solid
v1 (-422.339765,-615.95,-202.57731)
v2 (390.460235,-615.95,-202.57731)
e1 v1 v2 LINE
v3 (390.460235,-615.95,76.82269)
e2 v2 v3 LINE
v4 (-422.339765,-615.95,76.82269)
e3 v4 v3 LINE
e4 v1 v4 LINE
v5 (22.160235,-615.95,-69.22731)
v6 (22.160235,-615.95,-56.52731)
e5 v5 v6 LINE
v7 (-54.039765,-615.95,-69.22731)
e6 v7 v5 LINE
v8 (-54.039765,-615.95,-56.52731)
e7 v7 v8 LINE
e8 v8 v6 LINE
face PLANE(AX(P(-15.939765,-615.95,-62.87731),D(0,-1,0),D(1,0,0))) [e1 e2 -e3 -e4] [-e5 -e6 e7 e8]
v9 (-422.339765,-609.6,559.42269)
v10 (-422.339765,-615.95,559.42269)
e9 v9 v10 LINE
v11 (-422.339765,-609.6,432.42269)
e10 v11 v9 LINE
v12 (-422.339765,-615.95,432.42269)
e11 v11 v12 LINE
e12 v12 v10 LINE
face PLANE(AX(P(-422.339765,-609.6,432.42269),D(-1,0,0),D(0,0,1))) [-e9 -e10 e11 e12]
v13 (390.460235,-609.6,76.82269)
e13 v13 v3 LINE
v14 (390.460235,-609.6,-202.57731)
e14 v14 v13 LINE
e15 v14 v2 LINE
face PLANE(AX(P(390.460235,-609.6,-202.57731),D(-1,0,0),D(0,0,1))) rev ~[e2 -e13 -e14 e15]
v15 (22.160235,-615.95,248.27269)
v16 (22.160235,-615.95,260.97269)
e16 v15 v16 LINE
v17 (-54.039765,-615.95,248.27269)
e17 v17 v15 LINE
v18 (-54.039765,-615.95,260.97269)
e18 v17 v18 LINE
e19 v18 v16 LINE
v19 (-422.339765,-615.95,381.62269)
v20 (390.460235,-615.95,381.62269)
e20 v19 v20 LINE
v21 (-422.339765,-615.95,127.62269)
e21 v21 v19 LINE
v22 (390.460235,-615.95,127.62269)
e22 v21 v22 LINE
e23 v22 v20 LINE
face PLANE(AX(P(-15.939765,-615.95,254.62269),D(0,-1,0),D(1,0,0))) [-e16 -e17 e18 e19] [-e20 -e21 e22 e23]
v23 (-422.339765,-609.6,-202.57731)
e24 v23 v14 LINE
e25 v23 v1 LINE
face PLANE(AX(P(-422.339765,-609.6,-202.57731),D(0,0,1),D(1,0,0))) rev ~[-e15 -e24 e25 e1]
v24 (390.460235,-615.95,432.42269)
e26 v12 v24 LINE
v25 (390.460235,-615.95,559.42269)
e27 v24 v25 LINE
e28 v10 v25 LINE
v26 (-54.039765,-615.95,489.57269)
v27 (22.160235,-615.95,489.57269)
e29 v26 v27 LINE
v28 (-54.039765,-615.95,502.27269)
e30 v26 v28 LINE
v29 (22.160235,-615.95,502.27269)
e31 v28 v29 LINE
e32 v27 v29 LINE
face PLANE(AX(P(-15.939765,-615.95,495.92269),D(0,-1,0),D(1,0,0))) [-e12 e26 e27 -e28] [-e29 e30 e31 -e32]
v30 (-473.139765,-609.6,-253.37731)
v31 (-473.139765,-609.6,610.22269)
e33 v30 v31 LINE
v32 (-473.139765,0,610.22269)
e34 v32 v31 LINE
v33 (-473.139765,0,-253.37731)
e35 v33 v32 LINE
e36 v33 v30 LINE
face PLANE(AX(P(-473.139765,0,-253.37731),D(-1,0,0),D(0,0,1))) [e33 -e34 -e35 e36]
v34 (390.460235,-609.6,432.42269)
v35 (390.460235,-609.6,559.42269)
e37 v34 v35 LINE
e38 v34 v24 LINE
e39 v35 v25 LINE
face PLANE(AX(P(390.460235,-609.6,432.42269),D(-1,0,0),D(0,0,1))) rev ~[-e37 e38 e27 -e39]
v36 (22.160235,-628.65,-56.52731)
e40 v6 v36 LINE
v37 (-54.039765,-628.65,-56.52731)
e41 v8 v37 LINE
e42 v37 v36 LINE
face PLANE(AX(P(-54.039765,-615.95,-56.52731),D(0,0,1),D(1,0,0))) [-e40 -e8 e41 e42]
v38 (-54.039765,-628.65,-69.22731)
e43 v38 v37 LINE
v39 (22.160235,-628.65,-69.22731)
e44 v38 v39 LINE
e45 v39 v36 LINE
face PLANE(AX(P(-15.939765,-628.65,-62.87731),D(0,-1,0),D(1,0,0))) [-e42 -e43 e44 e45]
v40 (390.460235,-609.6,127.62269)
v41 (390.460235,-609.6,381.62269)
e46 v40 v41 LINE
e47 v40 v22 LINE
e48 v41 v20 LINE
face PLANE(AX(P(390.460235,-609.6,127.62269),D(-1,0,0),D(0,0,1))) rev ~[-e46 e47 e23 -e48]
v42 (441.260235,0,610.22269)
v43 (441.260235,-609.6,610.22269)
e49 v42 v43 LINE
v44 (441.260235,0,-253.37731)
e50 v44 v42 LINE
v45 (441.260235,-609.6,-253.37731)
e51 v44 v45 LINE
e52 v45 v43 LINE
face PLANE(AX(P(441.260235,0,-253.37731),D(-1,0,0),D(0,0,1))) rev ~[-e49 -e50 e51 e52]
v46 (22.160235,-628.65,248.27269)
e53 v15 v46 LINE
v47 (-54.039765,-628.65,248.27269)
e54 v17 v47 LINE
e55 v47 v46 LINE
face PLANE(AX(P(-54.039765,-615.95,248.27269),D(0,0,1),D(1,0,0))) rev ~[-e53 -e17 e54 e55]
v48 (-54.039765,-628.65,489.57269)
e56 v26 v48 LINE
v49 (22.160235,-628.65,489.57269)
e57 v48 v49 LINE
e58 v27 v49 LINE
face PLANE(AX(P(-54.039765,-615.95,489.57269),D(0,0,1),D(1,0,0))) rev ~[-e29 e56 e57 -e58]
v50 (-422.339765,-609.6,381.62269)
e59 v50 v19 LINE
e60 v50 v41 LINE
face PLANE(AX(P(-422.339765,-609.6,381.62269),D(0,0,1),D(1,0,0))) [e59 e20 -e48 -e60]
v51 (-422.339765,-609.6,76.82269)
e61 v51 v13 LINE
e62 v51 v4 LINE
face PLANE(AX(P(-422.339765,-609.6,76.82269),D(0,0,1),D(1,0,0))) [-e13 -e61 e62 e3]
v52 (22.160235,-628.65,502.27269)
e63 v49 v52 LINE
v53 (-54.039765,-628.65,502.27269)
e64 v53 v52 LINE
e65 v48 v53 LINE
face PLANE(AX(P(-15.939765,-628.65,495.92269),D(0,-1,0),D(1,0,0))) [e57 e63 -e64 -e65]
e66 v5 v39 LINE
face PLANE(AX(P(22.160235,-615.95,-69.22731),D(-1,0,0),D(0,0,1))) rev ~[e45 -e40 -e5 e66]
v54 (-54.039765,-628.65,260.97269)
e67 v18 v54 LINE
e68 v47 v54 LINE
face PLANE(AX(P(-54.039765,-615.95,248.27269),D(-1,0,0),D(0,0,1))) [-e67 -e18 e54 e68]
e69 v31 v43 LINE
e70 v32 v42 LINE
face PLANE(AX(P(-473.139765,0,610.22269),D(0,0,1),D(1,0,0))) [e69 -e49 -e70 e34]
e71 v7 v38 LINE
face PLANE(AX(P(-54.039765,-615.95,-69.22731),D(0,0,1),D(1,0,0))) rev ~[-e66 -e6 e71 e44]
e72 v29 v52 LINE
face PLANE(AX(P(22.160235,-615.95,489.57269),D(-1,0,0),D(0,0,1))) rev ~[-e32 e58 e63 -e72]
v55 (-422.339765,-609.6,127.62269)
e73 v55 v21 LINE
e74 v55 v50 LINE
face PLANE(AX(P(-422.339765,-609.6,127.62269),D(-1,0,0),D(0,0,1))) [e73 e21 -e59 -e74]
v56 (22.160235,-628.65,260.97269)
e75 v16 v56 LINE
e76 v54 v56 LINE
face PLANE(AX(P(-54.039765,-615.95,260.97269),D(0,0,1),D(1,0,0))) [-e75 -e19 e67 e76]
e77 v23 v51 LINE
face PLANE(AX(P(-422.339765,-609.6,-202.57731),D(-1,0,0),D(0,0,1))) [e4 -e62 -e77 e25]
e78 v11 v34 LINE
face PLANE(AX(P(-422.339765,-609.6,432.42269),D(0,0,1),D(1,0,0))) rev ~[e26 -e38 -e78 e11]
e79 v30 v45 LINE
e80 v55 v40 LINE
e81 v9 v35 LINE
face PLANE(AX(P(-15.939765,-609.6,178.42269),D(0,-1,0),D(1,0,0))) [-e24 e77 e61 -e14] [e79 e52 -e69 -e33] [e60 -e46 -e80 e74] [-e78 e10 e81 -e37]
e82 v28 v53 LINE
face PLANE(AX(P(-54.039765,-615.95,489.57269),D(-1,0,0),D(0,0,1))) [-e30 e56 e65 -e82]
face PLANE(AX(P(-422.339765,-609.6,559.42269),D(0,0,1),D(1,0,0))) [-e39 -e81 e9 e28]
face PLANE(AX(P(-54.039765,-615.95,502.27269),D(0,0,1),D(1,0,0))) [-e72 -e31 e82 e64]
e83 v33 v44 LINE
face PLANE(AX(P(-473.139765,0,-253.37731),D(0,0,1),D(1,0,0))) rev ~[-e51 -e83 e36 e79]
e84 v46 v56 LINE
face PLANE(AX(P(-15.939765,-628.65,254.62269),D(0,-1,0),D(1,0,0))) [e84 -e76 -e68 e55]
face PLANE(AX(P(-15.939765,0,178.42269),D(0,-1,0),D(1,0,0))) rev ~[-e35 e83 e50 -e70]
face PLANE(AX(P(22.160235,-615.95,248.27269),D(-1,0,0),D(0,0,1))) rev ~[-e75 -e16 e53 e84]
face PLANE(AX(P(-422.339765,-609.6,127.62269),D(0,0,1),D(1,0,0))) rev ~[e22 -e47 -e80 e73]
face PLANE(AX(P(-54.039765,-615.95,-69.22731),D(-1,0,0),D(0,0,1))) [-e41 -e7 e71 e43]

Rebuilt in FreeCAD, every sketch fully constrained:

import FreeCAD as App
import Part
import Sketcher
Q = App.Units.Quantity

doc = App.newDocument("Part")
body = doc.addObject("PartDesign::Body", "Body")

# Sketch on XZ plane
sketch1 = doc.addObject("Sketcher::SketchObject", "Sketch")
body.addObject(sketch1)
sketch1.AttachmentSupport = (doc.XZ_Plane, [""])
sketch1.MapMode = "FlatFace"
sketch1.addGeometry(Part.LineSegment(App.Vector(-473, 610, 0), App.Vector(-473, -253, 0)), False)
sketch1.addGeometry(Part.LineSegment(App.Vector(-473, -253, 0), App.Vector(441, -253, 0)), False)
sketch1.addGeometry(Part.LineSegment(App.Vector(441, -253, 0), App.Vector(441, 610, 0)), False)
sketch1.addGeometry(Part.LineSegment(App.Vector(441, 610, 0), App.Vector(-473, 610, 0)), False)
sketch1.addConstraint(Sketcher.Constraint("Coincident", 0, 2, 1, 1))
sketch1.addConstraint(Sketcher.Constraint("Coincident", 1, 2, 2, 1))
sketch1.addConstraint(Sketcher.Constraint("Coincident", 2, 2, 3, 1))
sketch1.addConstraint(Sketcher.Constraint("Coincident", 3, 2, 0, 1))
sketch1.addConstraint(Sketcher.Constraint("Vertical", 0))
sketch1.addConstraint(Sketcher.Constraint("Horizontal", 1))
sketch1.addConstraint(Sketcher.Constraint("Vertical", 2))
sketch1.addConstraint(Sketcher.Constraint("Horizontal", 3))
sketch1.addConstraint(Sketcher.Constraint("DistanceX", 1, 1, 1, 2, Q("36 in")))
sketch1.addConstraint(Sketcher.Constraint("DistanceY", 0, 2, 0, 1, Q("34 in")))
sketch1.addConstraint(Sketcher.Constraint("DistanceY", 0, 2, -1, 1, Q("253.37731 mm")))
sketch1.addConstraint(Sketcher.Constraint("DistanceX", 0, 2, -1, 1, Q("473.139765 mm")))
pad1 = doc.addObject("PartDesign::Pad", "Pad")
body.addObject(pad1)
pad1.Profile = sketch1
pad1.Length = Q("24 in")

# Sketch on XZ plane
sketch2 = doc.addObject("Sketcher::SketchObject", "Sketch001")
body.addObject(sketch2)
sketch2.AttachmentSupport = (doc.XZ_Plane, [""])
sketch2.MapMode = "FlatFace"
sketch2.AttachmentOffset = App.Placement(App.Vector(0, 0, 24 * 25.4), App.Rotation())
sketch2.addGeometry(Part.LineSegment(App.Vector(-422, 559, 0), App.Vector(-422, 432, 0)), False)
sketch2.addGeometry(Part.LineSegment(App.Vector(-422, 432, 0), App.Vector(390, 432, 0)), False)
sketch2.addGeometry(Part.LineSegment(App.Vector(390, 432, 0), App.Vector(390, 559, 0)), False)
sketch2.addGeometry(Part.LineSegment(App.Vector(390, 559, 0), App.Vector(-422, 559, 0)), False)
sketch2.addGeometry(Part.LineSegment(App.Vector(-422, 382, 0), App.Vector(-422, 128, 0)), False)
sketch2.addGeometry(Part.LineSegment(App.Vector(-422, 128, 0), App.Vector(390, 128, 0)), False)
sketch2.addGeometry(Part.LineSegment(App.Vector(390, 128, 0), App.Vector(390, 382, 0)), False)
sketch2.addGeometry(Part.LineSegment(App.Vector(390, 382, 0), App.Vector(-422, 382, 0)), False)
sketch2.addGeometry(Part.LineSegment(App.Vector(-422, 77, 0), App.Vector(-422, -203, 0)), False)
sketch2.addGeometry(Part.LineSegment(App.Vector(-422, -203, 0), App.Vector(390, -203, 0)), False)
sketch2.addGeometry(Part.LineSegment(App.Vector(390, -203, 0), App.Vector(390, 77, 0)), False)
sketch2.addGeometry(Part.LineSegment(App.Vector(390, 77, 0), App.Vector(-422, 77, 0)), False)
sketch2.addConstraint(Sketcher.Constraint("Coincident", 0, 2, 1, 1))
sketch2.addConstraint(Sketcher.Constraint("Coincident", 1, 2, 2, 1))
sketch2.addConstraint(Sketcher.Constraint("Coincident", 2, 2, 3, 1))
sketch2.addConstraint(Sketcher.Constraint("Coincident", 3, 2, 0, 1))
sketch2.addConstraint(Sketcher.Constraint("Coincident", 4, 2, 5, 1))
sketch2.addConstraint(Sketcher.Constraint("Coincident", 5, 2, 6, 1))
sketch2.addConstraint(Sketcher.Constraint("Coincident", 6, 2, 7, 1))
sketch2.addConstraint(Sketcher.Constraint("Coincident", 7, 2, 4, 1))
sketch2.addConstraint(Sketcher.Constraint("Coincident", 8, 2, 9, 1))
sketch2.addConstraint(Sketcher.Constraint("Coincident", 9, 2, 10, 1))
sketch2.addConstraint(Sketcher.Constraint("Coincident", 10, 2, 11, 1))
sketch2.addConstraint(Sketcher.Constraint("Coincident", 11, 2, 8, 1))
sketch2.addConstraint(Sketcher.Constraint("Vertical", 0))
sketch2.addConstraint(Sketcher.Constraint("Horizontal", 1))
sketch2.addConstraint(Sketcher.Constraint("Vertical", 2))
sketch2.addConstraint(Sketcher.Constraint("Horizontal", 3))
sketch2.addConstraint(Sketcher.Constraint("Vertical", 4))
sketch2.addConstraint(Sketcher.Constraint("Horizontal", 5))
sketch2.addConstraint(Sketcher.Constraint("Vertical", 6))
sketch2.addConstraint(Sketcher.Constraint("Horizontal", 7))
sketch2.addConstraint(Sketcher.Constraint("Vertical", 8))
sketch2.addConstraint(Sketcher.Constraint("Horizontal", 9))
sketch2.addConstraint(Sketcher.Constraint("Vertical", 10))
sketch2.addConstraint(Sketcher.Constraint("Horizontal", 11))
sketch2.addConstraint(Sketcher.Constraint("Vertical", 3, 2, 4, 2))
sketch2.addConstraint(Sketcher.Constraint("Vertical", 2, 2, 5, 2))
sketch2.addConstraint(Sketcher.Constraint("Vertical", 7, 2, 8, 2))
sketch2.addConstraint(Sketcher.Constraint("Vertical", 6, 2, 9, 2))
sketch2.addConstraint(Sketcher.Constraint("DistanceX", 1, 1, 1, 2, Q("32 in")))
sketch2.addConstraint(Sketcher.Constraint("DistanceY", 0, 2, 0, 1, Q("5 in")))
sketch2.addConstraint(Sketcher.Constraint("DistanceY", 4, 2, 4, 1, Q("10 in")))
sketch2.addConstraint(Sketcher.Constraint("DistanceY", 8, 2, 8, 1, Q("11 in")))
sketch2.addConstraint(Sketcher.Constraint("DistanceY", 4, 2, 0, 2, Q("12 in")))
sketch2.addConstraint(Sketcher.Constraint("DistanceY", 8, 2, 4, 2, Q("13 in")))
sketch2.addConstraint(Sketcher.Constraint("DistanceY", -1, 1, 0, 2, Q("432.42269 mm")))
sketch2.addConstraint(Sketcher.Constraint("DistanceX", 0, 2, -1, 1, Q("422.339765 mm")))
pad2 = doc.addObject("PartDesign::Pad", "Pad001")
body.addObject(pad2)
pad2.Profile = sketch2
pad2.Length = Q("0.25 in")

# Sketch on XZ plane
sketch3 = doc.addObject("Sketcher::SketchObject", "Sketch002")
body.addObject(sketch3)
sketch3.AttachmentSupport = (doc.XZ_Plane, [""])
sketch3.MapMode = "FlatFace"
sketch3.AttachmentOffset = App.Placement(App.Vector(0, 0, 24.25 * 25.4), App.Rotation())
sketch3.addGeometry(Part.LineSegment(App.Vector(-54, 502, 0), App.Vector(-54, 490, 0)), False)
sketch3.addGeometry(Part.LineSegment(App.Vector(-54, 490, 0), App.Vector(22, 490, 0)), False)
sketch3.addGeometry(Part.LineSegment(App.Vector(22, 490, 0), App.Vector(22, 502, 0)), False)
sketch3.addGeometry(Part.LineSegment(App.Vector(22, 502, 0), App.Vector(-54, 502, 0)), False)
sketch3.addGeometry(Part.LineSegment(App.Vector(-54, 261, 0), App.Vector(-54, 248, 0)), False)
sketch3.addGeometry(Part.LineSegment(App.Vector(-54, 248, 0), App.Vector(22, 248, 0)), False)
sketch3.addGeometry(Part.LineSegment(App.Vector(22, 248, 0), App.Vector(22, 261, 0)), False)
sketch3.addGeometry(Part.LineSegment(App.Vector(22, 261, 0), App.Vector(-54, 261, 0)), False)
sketch3.addGeometry(Part.LineSegment(App.Vector(-54, -57, 0), App.Vector(-54, -69, 0)), False)
sketch3.addGeometry(Part.LineSegment(App.Vector(-54, -69, 0), App.Vector(22, -69, 0)), False)
sketch3.addGeometry(Part.LineSegment(App.Vector(22, -69, 0), App.Vector(22, -57, 0)), False)
sketch3.addGeometry(Part.LineSegment(App.Vector(22, -57, 0), App.Vector(-54, -57, 0)), False)
sketch3.addConstraint(Sketcher.Constraint("Coincident", 0, 2, 1, 1))
sketch3.addConstraint(Sketcher.Constraint("Coincident", 1, 2, 2, 1))
sketch3.addConstraint(Sketcher.Constraint("Coincident", 2, 2, 3, 1))
sketch3.addConstraint(Sketcher.Constraint("Coincident", 3, 2, 0, 1))
sketch3.addConstraint(Sketcher.Constraint("Coincident", 4, 2, 5, 1))
sketch3.addConstraint(Sketcher.Constraint("Coincident", 5, 2, 6, 1))
sketch3.addConstraint(Sketcher.Constraint("Coincident", 6, 2, 7, 1))
sketch3.addConstraint(Sketcher.Constraint("Coincident", 7, 2, 4, 1))
sketch3.addConstraint(Sketcher.Constraint("Coincident", 8, 2, 9, 1))
sketch3.addConstraint(Sketcher.Constraint("Coincident", 9, 2, 10, 1))
sketch3.addConstraint(Sketcher.Constraint("Coincident", 10, 2, 11, 1))
sketch3.addConstraint(Sketcher.Constraint("Coincident", 11, 2, 8, 1))
sketch3.addConstraint(Sketcher.Constraint("Vertical", 0))
sketch3.addConstraint(Sketcher.Constraint("Horizontal", 1))
sketch3.addConstraint(Sketcher.Constraint("Vertical", 2))
sketch3.addConstraint(Sketcher.Constraint("Horizontal", 3))
sketch3.addConstraint(Sketcher.Constraint("Vertical", 4))
sketch3.addConstraint(Sketcher.Constraint("Horizontal", 5))
sketch3.addConstraint(Sketcher.Constraint("Vertical", 6))
sketch3.addConstraint(Sketcher.Constraint("Horizontal", 7))
sketch3.addConstraint(Sketcher.Constraint("Vertical", 8))
sketch3.addConstraint(Sketcher.Constraint("Horizontal", 9))
sketch3.addConstraint(Sketcher.Constraint("Vertical", 10))
sketch3.addConstraint(Sketcher.Constraint("Horizontal", 11))
sketch3.addConstraint(Sketcher.Constraint("Vertical", 3, 2, 4, 2))
sketch3.addConstraint(Sketcher.Constraint("Vertical", 2, 2, 5, 2))
sketch3.addConstraint(Sketcher.Constraint("Vertical", 7, 2, 8, 2))
sketch3.addConstraint(Sketcher.Constraint("Vertical", 6, 2, 9, 2))
sketch3.addConstraint(Sketcher.Constraint("Equal", 2, 4))
sketch3.addConstraint(Sketcher.Constraint("Equal", 6, 8))
sketch3.addConstraint(Sketcher.Constraint("DistanceX", 1, 1, 1, 2, Q("3 in")))
sketch3.addConstraint(Sketcher.Constraint("DistanceY", 0, 2, 0, 1, Q("0.5 in")))
sketch3.addConstraint(Sketcher.Constraint("DistanceY", 4, 2, 3, 2, Q("10 in")))
sketch3.addConstraint(Sketcher.Constraint("DistanceY", 8, 2, 7, 2, Q("13 in")))
sketch3.addConstraint(Sketcher.Constraint("DistanceY", -1, 1, 0, 2, Q("489.57269 mm")))
sketch3.addConstraint(Sketcher.Constraint("DistanceX", 0, 2, -1, 1, Q("54.039765 mm")))
pad3 = doc.addObject("PartDesign::Pad", "Pad002")
body.addObject(pad3)
pad3.Profile = sketch3
pad3.Length = Q("0.5 in")

doc.recompute()
